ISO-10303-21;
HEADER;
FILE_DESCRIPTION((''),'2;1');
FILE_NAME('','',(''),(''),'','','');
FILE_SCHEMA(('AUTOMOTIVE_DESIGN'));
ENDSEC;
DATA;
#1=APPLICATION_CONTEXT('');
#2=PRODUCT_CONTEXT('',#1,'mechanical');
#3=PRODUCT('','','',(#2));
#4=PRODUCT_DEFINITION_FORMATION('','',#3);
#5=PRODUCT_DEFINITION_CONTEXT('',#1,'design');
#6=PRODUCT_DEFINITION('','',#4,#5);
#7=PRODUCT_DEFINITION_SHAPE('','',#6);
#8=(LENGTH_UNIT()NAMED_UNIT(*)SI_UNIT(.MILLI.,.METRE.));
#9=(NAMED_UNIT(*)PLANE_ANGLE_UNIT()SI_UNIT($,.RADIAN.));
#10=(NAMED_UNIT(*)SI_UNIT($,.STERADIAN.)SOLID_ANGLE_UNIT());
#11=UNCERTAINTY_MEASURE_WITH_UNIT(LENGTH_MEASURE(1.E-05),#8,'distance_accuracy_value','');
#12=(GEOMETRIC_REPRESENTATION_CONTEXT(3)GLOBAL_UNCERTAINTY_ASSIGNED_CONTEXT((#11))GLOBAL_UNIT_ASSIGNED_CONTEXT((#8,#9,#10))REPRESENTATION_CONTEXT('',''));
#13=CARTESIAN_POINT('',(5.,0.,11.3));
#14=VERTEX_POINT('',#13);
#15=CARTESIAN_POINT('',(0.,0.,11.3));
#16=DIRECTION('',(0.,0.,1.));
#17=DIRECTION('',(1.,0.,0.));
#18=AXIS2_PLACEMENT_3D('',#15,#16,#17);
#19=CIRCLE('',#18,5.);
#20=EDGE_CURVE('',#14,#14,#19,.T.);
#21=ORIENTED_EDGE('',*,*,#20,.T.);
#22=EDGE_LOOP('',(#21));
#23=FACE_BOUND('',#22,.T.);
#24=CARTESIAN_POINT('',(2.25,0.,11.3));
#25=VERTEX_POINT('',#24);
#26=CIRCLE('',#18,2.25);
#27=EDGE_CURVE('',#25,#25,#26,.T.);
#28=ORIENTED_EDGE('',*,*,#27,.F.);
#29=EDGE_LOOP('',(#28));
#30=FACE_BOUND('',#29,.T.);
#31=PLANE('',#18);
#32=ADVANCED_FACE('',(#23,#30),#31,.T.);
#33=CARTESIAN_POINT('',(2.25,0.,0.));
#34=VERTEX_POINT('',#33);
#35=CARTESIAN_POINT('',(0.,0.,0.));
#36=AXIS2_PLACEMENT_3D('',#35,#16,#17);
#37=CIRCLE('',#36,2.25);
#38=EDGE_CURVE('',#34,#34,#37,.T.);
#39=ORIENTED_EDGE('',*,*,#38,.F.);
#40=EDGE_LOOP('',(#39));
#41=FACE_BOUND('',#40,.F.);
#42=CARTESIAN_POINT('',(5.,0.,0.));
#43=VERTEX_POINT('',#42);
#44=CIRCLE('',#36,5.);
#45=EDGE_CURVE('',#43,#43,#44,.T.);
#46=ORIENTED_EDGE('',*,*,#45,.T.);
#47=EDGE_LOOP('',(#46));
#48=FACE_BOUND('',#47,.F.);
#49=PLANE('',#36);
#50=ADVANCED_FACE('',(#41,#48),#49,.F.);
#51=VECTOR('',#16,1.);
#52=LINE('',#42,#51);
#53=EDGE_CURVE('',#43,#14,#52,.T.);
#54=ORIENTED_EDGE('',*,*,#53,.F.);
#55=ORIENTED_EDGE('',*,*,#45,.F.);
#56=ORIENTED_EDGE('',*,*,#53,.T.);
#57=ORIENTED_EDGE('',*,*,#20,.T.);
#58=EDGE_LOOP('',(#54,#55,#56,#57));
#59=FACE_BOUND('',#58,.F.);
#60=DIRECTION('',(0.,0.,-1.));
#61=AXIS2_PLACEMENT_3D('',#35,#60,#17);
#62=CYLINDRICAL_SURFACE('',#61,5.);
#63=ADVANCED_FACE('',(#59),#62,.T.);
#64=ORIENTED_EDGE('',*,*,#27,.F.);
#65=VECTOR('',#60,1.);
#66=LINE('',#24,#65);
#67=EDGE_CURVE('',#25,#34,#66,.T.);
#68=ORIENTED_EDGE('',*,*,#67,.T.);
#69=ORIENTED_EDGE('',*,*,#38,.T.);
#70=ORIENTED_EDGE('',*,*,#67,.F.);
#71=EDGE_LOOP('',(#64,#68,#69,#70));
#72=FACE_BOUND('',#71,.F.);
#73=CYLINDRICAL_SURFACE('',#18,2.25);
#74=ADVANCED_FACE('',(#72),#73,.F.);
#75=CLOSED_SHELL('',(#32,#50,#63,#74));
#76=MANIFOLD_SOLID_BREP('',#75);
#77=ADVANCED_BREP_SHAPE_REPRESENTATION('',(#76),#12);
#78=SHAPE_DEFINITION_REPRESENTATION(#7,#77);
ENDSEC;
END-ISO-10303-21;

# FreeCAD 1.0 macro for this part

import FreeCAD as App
import Part
import Sketcher
from FreeCAD import Vector
Q = App.Units.Quantity

doc = App.newDocument("Part")
body = doc.addObject("PartDesign::Body", "Body")

# Sketch on XY plane
sketch1 = body.newObject("Sketcher::SketchObject", "Sketch")
sketch1.AttachmentSupport = (doc.getObject("XY_Plane"), [""])
sketch1.MapMode = "FlatFace"
sketch1.addGeometry(Part.Circle(Vector(0, 0, 0), Vector(0, 0, 1), 5), False)
sketch1.addConstraint([
    Sketcher.Constraint("Coincident", 0, 3, -1, 1),
    Sketcher.Constraint("Diameter", 0, Q("10 mm")),
])
pad1 = body.newObject("PartDesign::Pad", "Pad")
pad1.Profile = sketch1
pad1.Length = 11.3

# Sketch on XY plane
sketch2 = body.newObject("Sketcher::SketchObject", "Sketch001")
sketch2.AttachmentSupport = (doc.getObject("XY_Plane"), [""])
sketch2.MapMode = "FlatFace"
sketch2.AttachmentOffset = App.Placement(Vector(0, 0, 11.3), App.Rotation())
sketch2.addGeometry(Part.Circle(Vector(0, 0, 0), Vector(0, 0, 1), 2.25), False)
sketch2.addConstraint([
    Sketcher.Constraint("Coincident", 0, 3, -1, 1),
    Sketcher.Constraint("Diameter", 0, Q("4.5 mm")),
])
pocket1 = body.newObject("PartDesign::Pocket", "Pocket")
pocket1.Profile = sketch2
pocket1.Type = "ThroughAll"

doc.recompute()
